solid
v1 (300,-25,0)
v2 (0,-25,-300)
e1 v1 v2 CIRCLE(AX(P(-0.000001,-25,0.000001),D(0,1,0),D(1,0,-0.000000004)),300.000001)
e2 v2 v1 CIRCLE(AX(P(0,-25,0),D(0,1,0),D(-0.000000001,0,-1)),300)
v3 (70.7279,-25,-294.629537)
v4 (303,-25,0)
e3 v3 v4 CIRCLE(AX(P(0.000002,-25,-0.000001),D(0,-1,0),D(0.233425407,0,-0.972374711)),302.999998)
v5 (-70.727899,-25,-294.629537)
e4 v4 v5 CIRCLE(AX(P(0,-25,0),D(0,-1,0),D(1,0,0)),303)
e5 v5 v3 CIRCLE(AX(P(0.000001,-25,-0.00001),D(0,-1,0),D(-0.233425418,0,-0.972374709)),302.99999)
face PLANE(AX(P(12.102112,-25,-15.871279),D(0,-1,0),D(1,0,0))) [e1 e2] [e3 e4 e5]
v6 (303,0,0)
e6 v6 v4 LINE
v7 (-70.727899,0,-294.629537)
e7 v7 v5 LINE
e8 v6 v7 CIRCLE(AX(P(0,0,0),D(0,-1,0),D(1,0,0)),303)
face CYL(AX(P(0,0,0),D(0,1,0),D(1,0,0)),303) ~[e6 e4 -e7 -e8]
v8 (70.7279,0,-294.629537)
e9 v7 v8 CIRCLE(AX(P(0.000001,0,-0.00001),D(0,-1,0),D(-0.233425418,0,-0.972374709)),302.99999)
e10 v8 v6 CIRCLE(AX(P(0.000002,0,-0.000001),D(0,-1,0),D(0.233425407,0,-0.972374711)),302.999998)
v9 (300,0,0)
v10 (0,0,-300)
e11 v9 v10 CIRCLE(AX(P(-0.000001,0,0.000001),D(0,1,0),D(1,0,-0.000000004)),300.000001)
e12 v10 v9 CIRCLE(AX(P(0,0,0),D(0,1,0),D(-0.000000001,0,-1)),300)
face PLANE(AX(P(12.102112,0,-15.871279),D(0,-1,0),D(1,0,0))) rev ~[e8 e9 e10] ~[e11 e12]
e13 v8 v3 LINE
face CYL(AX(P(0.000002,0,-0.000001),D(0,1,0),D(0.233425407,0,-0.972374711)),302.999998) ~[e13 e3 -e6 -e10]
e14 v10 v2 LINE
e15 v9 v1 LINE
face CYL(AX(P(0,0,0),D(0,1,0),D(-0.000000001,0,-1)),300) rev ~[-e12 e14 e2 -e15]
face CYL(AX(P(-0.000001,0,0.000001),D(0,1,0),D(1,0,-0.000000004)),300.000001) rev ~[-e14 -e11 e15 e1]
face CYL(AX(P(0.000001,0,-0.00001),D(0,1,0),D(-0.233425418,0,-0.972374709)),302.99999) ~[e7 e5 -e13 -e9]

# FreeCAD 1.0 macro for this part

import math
import FreeCAD as App
import Part
import Sketcher
Q = App.Units.Quantity

doc = App.newDocument("Part")
body = doc.addObject("PartDesign::Body", "Body")

# Sketch on XZ plane
sketch1 = body.newObject("Sketcher::SketchObject", "Sketch")
sketch1.AttachmentSupport = (doc.getObject("XZ_Plane"), [""])
sketch1.MapMode = "FlatFace"
sketch1.addGeometry([
    Part.ArcOfCircle(Part.Circle(App.Vector(0, 0, 0), App.Vector(0, 0, 1), 303), math.radians(-77), math.radians(0)),  # 0
    Part.ArcOfCircle(Part.Circle(App.Vector(0, 0, 0), App.Vector(0, 0, 1), 303), math.radians(0), math.radians(257)),  # 1
    Part.ArcOfCircle(Part.Circle(App.Vector(0, 0, 0), App.Vector(0, 0, 1), 303), math.radians(-103), math.radians(-77)),  # 2
    Part.ArcOfCircle(Part.Circle(App.Vector(0, 0, 0), App.Vector(0, 0, 1), 300), math.radians(-90), math.radians(0)),  # 3
    Part.ArcOfCircle(Part.Circle(App.Vector(0, 0, 0), App.Vector(0, 0, 1), 300), math.radians(0), math.radians(270)),  # 4
], False)
sketch1.addConstraint([
    Sketcher.Constraint("Tangent", 0, 2, 1, 1),
    Sketcher.Constraint("Tangent", 1, 2, 2, 1),
    Sketcher.Constraint("Coincident", 2, 2, 0, 1),
    Sketcher.Constraint("Tangent", 3, 1, 4, 2),
    Sketcher.Constraint("Coincident", 4, 1, 3, 2),
    Sketcher.Constraint("Coincident", 0, 3, -1, 1),
    Sketcher.Constraint("Coincident", 3, 3, -1, 1),
    Sketcher.Constraint("Equal", 0, 1),
    Sketcher.Constraint("PointOnObject", 0, 2, -1),
    Sketcher.Constraint("PointOnObject", 3, 1, -2),
    Sketcher.Constraint("PointOnObject", 4, 1, -1),
    Sketcher.Constraint("Horizontal", 1, 2, 2, 2),
    Sketcher.Constraint("Radius", 0, Q("302.999998 mm")),
    Sketcher.Constraint("Radius", 3, Q("300.000001 mm")),
    Sketcher.Constraint("DistanceX", 1, 2, -1, 1, Q("70.727899 mm")),
])
pad1 = body.newObject("PartDesign::Pad", "Pad")
pad1.Profile = sketch1
pad1.Length = 25

doc.recompute()
